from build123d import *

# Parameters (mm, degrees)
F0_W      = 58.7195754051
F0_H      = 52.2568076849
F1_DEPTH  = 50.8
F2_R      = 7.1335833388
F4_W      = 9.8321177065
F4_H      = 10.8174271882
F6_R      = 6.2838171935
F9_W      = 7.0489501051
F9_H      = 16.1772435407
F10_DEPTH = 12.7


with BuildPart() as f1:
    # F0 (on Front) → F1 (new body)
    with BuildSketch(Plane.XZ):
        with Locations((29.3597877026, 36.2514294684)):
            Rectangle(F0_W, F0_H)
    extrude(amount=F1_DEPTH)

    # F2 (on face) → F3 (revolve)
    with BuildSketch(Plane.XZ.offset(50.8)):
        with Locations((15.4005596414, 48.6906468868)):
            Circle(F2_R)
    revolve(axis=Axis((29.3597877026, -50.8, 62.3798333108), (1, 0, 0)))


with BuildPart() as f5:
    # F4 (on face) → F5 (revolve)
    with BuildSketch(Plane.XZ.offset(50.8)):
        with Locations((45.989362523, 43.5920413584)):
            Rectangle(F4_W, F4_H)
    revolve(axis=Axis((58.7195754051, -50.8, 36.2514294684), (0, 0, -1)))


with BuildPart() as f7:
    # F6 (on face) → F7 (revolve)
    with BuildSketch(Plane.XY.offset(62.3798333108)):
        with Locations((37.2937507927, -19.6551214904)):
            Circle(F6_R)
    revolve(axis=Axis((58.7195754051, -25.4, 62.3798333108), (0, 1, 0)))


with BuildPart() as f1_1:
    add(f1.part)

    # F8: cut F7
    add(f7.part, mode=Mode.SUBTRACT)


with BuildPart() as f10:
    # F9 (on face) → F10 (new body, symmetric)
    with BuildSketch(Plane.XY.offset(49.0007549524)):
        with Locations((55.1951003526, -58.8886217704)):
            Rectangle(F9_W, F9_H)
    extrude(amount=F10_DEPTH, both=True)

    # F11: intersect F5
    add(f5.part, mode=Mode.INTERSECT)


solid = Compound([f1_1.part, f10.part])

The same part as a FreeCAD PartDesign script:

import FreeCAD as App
import Part
import Sketcher
from FreeCAD import Vector
Q = App.Units.Quantity


def add_polygon(sketch, points):
    """Adds a closed chain of lines whose ends are joined by coincident constraints."""
    first, n = sketch.GeometryCount, len(points)
    for a, b in zip(points, points[1:] + points[:1]):
        sketch.addGeometry(Part.LineSegment(App.Vector(*a, 0), App.Vector(*b, 0)), False)
    for i in range(n):
        sketch.addConstraint(Sketcher.Constraint("Coincident", first + i, 2, first + (i + 1) % n, 1))

doc = App.newDocument("Part")
body = doc.addObject("PartDesign::Body", "Body")

# Sketch on XZ plane
sketch1 = body.newObject("Sketcher::SketchObject", "Sketch")
sketch1.AttachmentSupport = (doc.getObject("XZ_Plane"), [""])
sketch1.MapMode = "FlatFace"
add_polygon(sketch1, [(0, 62), (0, 10), (59, 10), (59, 62)])  # lines 0-3
sketch1.addConstraint(Sketcher.Constraint("Vertical", 0))
sketch1.addConstraint(Sketcher.Constraint("Horizontal", 1))
sketch1.addConstraint(Sketcher.Constraint("Vertical", 2))
sketch1.addConstraint(Sketcher.Constraint("Horizontal", 3))
sketch1.addConstraint(Sketcher.Constraint("PointOnObject", 0, 2, -2))
sketch1.addConstraint(Sketcher.Constraint("DistanceX", 1, 1, 1, 2, Q("58.719575 mm")))
sketch1.addConstraint(Sketcher.Constraint("DistanceY", 0, 2, 0, 1, Q("52.256808 mm")))
sketch1.addConstraint(Sketcher.Constraint("DistanceY", -1, 1, 0, 2, Q("10.123026 mm")))
pad1 = body.newObject("PartDesign::Pad", "Pad")
pad1.Profile = sketch1
pad1.Length = Q("2 in")

# Sketch on XZ plane
sketch2 = body.newObject("Sketcher::SketchObject", "Sketch001")
sketch2.AttachmentSupport = (doc.getObject("XZ_Plane"), [""])
sketch2.MapMode = "FlatFace"
sketch2.AttachmentOffset = App.Placement(Vector(0, 0, 2 * 25.4), App.Rotation())
sketch2.addGeometry(Part.Circle(Vector(15, 49, 0), Vector(0, 0, 1), 7), False)
sketch2.addGeometry(Part.LineSegment(Vector(15, 62, 0), Vector(25, 62, 0)), True)  # axis
sketch2.addConstraint(Sketcher.Constraint("Horizontal", 1))
sketch2.addConstraint(Sketcher.Constraint("Vertical", 0, 3, 1, 1))
sketch2.addConstraint(Sketcher.Constraint("Diameter", 0, Q("14.267167 mm")))
sketch2.addConstraint(Sketcher.Constraint("DistanceX", 1, 1, 1, 2, Q("10 mm")))
sketch2.addConstraint(Sketcher.Constraint("DistanceX", -1, 1, 0, 3, Q("15.40056 mm")))
sketch2.addConstraint(Sketcher.Constraint("DistanceY", -1, 1, 0, 3, Q("48.690647 mm")))
sketch2.addConstraint(Sketcher.Constraint("DistanceY", -1, 1, 1, 1, Q("62.379833 mm")))
revolution = body.newObject("PartDesign::Revolution", "Revolution")
revolution.Profile = sketch2
revolution.ReferenceAxis = (sketch2, ["Axis0"])
revolution.Angle = 360
body2 = doc.addObject("PartDesign::Body", "Body001")

# Sketch on XZ plane
sketch3 = body2.newObject("Sketcher::SketchObject", "Sketch002")
sketch3.AttachmentSupport = (doc.getObject("XZ_Plane001"), [""])
sketch3.MapMode = "FlatFace"
sketch3.AttachmentOffset = App.Placement(Vector(0, 0, 2 * 25.4), App.Rotation())
add_polygon(sketch3, [(41, 49), (41, 38), (51, 38), (51, 49)])  # lines 0-3
sketch3.addGeometry(Part.LineSegment(Vector(59, 49, 0), Vector(59, 38, 0)), True)  # axis
sketch3.addConstraint(Sketcher.Constraint("Vertical", 0))
sketch3.addConstraint(Sketcher.Constraint("Horizontal", 1))
sketch3.addConstraint(Sketcher.Constraint("Vertical", 2))
sketch3.addConstraint(Sketcher.Constraint("Horizontal", 3))
sketch3.addConstraint(Sketcher.Constraint("Vertical", 4))
sketch3.addConstraint(Sketcher.Constraint("Horizontal", 3, 2, 4, 1))
sketch3.addConstraint(Sketcher.Constraint("Horizontal", 1, 2, 4, 2))
sketch3.addConstraint(Sketcher.Constraint("DistanceX", 1, 1, 1, 2, Q("9.832118 mm")))
sketch3.addConstraint(Sketcher.Constraint("DistanceY", 0, 2, 0, 1, Q("10.817427 mm")))
sketch3.addConstraint(Sketcher.Constraint("DistanceX", -1, 1, 1, 2, Q("50.905421 mm")))
sketch3.addConstraint(Sketcher.Constraint("DistanceX", 3, 2, 4, 1, Q("17.646272 mm")))
sketch3.addConstraint(Sketcher.Constraint("DistanceY", -1, 1, 0, 2, Q("38.183328 mm")))
revolution2 = body2.newObject("PartDesign::Revolution", "Revolution001")
revolution2.Profile = sketch3
revolution2.ReferenceAxis = (sketch3, ["Axis0"])
revolution2.Angle = 360
body3 = doc.addObject("PartDesign::Body", "Body002")

# Sketch on XY plane
sketch4 = body3.newObject("Sketcher::SketchObject", "Sketch003")
sketch4.AttachmentSupport = (doc.getObject("XY_Plane002"), [""])
sketch4.MapMode = "FlatFace"
sketch4.AttachmentOffset = App.Placement(Vector(0, 0, 62.379833), App.Rotation())
sketch4.addGeometry(Part.Circle(Vector(37, -20, 0), Vector(0, 0, 1), 6), False)
sketch4.addGeometry(Part.LineSegment(Vector(59, -20, 0), Vector(59, -10, 0)), True)  # axis
sketch4.addConstraint(Sketcher.Constraint("Vertical", 1))
sketch4.addConstraint(Sketcher.Constraint("Horizontal", 0, 3, 1, 1))
sketch4.addConstraint(Sketcher.Constraint("Diameter", 0, Q("12.567634 mm")))
sketch4.addConstraint(Sketcher.Constraint("DistanceY", 1, 1, 1, 2, Q("10 mm")))
sketch4.addConstraint(Sketcher.Constraint("DistanceX", -1, 1, 0, 3, Q("37.293751 mm")))
sketch4.addConstraint(Sketcher.Constraint("DistanceY", 0, 3, -1, 1, Q("19.655121 mm")))
sketch4.addConstraint(Sketcher.Constraint("DistanceX", -1, 1, 1, 1, Q("58.719575 mm")))
revolution3 = body3.newObject("PartDesign::Revolution", "Revolution002")
revolution3.Profile = sketch4
revolution3.ReferenceAxis = (sketch4, ["Axis0"])
revolution3.Angle = 360
doc.recompute()

boolean = body.newObject("PartDesign::Boolean", "Boolean")
boolean.Type = "Cut"
boolean.addObjects([body3])
body4 = doc.addObject("PartDesign::Body", "Body003")

# Sketch on XY plane
sketch5 = body4.newObject("Sketcher::SketchObject", "Sketch004")
sketch5.AttachmentSupport = (doc.getObject("XY_Plane003"), [""])
sketch5.MapMode = "FlatFace"
sketch5.AttachmentOffset = App.Placement(Vector(0, 0, 49.000755), App.Rotation())
add_polygon(sketch5, [(52, -51), (52, -67), (59, -67), (59, -51)])  # lines 0-3
sketch5.addConstraint(Sketcher.Constraint("Vertical", 0))
sketch5.addConstraint(Sketcher.Constraint("Horizontal", 1))
sketch5.addConstraint(Sketcher.Constraint("Vertical", 2))
sketch5.addConstraint(Sketcher.Constraint("Horizontal", 3))
sketch5.addConstraint(Sketcher.Constraint("DistanceY", 2, 2, -1, 1, Q("2 in")))
sketch5.addConstraint(Sketcher.Constraint("DistanceX", 1, 1, 1, 2, Q("7.04895 mm")))
sketch5.addConstraint(Sketcher.Constraint("DistanceY", 0, 2, 0, 1, Q("16.177244 mm")))
sketch5.addConstraint(Sketcher.Constraint("DistanceX", -1, 1, 0, 2, Q("51.670625 mm")))
pad2 = body4.newObject("PartDesign::Pad", "Pad001")
pad2.Profile = sketch5
pad2.Length = Q("1 in")
pad2.Midplane = True
doc.recompute()

boolean2 = body4.newObject("PartDesign::Boolean", "Boolean001")
boolean2.Type = "Common"
boolean2.addObjects([body2])

doc.recompute()
